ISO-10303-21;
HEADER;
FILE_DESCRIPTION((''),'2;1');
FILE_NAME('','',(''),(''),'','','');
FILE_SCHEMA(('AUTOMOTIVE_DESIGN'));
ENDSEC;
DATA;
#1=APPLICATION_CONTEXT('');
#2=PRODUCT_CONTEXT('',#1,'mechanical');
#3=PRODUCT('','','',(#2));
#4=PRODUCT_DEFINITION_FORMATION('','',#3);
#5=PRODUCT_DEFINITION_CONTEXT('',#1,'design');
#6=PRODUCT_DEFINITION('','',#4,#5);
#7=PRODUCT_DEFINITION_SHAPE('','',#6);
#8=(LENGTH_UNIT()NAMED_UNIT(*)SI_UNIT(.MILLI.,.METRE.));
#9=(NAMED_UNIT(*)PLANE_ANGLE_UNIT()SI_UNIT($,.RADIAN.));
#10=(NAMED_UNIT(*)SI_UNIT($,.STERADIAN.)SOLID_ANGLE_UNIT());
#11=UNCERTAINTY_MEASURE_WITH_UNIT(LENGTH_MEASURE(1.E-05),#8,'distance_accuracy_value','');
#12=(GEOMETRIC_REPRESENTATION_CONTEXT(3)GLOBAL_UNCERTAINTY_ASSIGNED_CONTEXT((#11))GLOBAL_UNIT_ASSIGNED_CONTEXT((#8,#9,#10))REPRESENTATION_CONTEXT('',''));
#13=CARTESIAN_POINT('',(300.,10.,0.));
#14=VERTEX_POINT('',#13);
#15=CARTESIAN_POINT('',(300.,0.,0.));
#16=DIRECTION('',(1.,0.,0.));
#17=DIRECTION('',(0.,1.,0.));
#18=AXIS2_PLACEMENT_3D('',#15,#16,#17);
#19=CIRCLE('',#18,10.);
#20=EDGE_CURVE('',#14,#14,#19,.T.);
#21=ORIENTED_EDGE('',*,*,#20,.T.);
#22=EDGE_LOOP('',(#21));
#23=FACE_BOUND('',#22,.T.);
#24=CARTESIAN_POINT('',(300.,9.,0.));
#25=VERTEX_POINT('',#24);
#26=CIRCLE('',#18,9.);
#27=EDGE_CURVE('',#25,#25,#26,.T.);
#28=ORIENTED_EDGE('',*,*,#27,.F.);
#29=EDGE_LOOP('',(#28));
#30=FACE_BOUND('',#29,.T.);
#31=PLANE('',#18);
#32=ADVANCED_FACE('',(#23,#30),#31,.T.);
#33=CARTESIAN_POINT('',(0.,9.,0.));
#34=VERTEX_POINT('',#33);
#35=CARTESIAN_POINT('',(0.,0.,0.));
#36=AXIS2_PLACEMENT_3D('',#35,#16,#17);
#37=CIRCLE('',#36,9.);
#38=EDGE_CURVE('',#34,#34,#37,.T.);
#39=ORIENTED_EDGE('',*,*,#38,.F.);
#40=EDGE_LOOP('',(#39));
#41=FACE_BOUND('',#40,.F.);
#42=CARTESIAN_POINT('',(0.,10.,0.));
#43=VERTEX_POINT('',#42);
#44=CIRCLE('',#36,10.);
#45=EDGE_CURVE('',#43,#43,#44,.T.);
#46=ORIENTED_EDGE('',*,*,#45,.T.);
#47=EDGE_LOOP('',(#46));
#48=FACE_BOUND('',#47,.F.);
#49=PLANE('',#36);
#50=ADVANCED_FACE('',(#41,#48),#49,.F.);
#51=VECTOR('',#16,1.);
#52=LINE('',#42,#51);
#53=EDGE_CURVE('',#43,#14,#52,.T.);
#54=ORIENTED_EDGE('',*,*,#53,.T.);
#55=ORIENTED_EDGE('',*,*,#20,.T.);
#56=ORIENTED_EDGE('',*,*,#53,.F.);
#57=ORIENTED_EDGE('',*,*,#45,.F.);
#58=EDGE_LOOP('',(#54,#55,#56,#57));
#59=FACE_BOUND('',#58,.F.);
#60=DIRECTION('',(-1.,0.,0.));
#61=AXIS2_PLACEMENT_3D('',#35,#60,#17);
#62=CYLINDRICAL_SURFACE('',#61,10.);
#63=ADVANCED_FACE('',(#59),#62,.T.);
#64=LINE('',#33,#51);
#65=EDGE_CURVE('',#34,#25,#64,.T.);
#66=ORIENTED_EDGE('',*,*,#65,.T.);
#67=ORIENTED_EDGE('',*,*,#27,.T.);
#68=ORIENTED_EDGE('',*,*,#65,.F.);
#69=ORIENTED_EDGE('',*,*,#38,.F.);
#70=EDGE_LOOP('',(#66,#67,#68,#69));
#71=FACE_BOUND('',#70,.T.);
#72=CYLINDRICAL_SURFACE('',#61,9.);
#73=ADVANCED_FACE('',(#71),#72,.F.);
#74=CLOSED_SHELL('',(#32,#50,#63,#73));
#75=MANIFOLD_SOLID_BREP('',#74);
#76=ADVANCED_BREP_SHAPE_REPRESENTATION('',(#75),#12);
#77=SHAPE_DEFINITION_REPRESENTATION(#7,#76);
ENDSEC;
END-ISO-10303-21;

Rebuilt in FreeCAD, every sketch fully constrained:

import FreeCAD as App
import Part
import Sketcher

V = App.Vector

doc = App.newDocument("Part")
params = doc.addObject("Spreadsheet::Sheet", "Params")
for row, (alias, value) in enumerate([
    ("sketch1_diameter", "20 mm"),
    ("sketch1_diameter2", "18 mm"),
    ("pad1_length", "300 mm"),
], start=1):
    params.set(f"A{row}", alias)
    params.set(f"B{row}", "=" + value)
    params.setAlias(f"B{row}", alias)

body = doc.addObject("PartDesign::Body", "Body")

sketch1 = body.newObject("Sketcher::SketchObject", "Sketch")
sketch1.AttachmentSupport = (doc.getObject("YZ_Plane"), [""])
sketch1.MapMode = "FlatFace"
sketch1.addGeometry(Part.Circle(V(0, 0, 0), V(0, 0, 1), 10), False)
sketch1.addGeometry(Part.Circle(V(0, 0, 0), V(0, 0, 1), 9), False)
sketch1.addConstraint(Sketcher.Constraint("Coincident", 0, 3, -1, 1))
sketch1.addConstraint(Sketcher.Constraint("Coincident", 1, 3, -1, 1))
sketch1.addConstraint(Sketcher.Constraint("Diameter", 0, 20.0))
sketch1.addConstraint(Sketcher.Constraint("Diameter", 1, 18.0))
sketch1.setExpression("Constraints[2]", "Params.sketch1_diameter")
sketch1.setExpression("Constraints[3]", "Params.sketch1_diameter2")
pad1 = body.newObject("PartDesign::Pad", "Pad")
pad1.Profile = sketch1
pad1.setExpression("Length", "Params.pad1_length")

doc.recompute()
